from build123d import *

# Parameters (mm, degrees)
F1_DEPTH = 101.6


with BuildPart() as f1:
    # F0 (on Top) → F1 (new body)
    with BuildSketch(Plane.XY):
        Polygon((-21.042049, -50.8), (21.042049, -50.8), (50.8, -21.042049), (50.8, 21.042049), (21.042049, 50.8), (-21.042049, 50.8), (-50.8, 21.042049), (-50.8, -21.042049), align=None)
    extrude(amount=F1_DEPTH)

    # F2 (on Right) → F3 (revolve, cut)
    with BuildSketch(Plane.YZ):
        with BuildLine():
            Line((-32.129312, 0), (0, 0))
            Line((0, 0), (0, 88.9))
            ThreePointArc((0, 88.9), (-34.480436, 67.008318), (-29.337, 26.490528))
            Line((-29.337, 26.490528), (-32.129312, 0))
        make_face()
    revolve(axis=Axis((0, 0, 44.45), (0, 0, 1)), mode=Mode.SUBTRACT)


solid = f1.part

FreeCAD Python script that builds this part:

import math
import FreeCAD as App
import Part
import Sketcher
Q = App.Units.Quantity

doc = App.newDocument("Part")
params = doc.addObject("Spreadsheet::Sheet", "Params")
for row, (alias, value) in enumerate([
    ("pad1_length", "4 in"),
    ("sketch2_radius", "1.5 in"),
    ("sketch2_height", "3.5 in"),
    ("groove_angle", "360 deg"),
], start=1):
    params.set(f"A{row}", alias)
    params.set(f"B{row}", "=" + value)
    params.setAlias(f"B{row}", alias)

body = doc.addObject("PartDesign::Body", "Body")

sketch1 = body.newObject("Sketcher::SketchObject", "Sketch")
sketch1.AttachmentSupport = (doc.getObject("XY_Plane"), [""])
sketch1.MapMode = "FlatFace"
sketch1.addGeometry([
    Part.LineSegment(App.Vector(-21, -51, 0), App.Vector(21, -51, 0)),
    Part.LineSegment(App.Vector(21, -51, 0), App.Vector(51, -21, 0)),
    Part.LineSegment(App.Vector(51, -21, 0), App.Vector(51, 21, 0)),
    Part.LineSegment(App.Vector(51, 21, 0), App.Vector(21, 51, 0)),
    Part.LineSegment(App.Vector(21, 51, 0), App.Vector(-21, 51, 0)),
    Part.LineSegment(App.Vector(-21, 51, 0), App.Vector(-51, 21, 0)),
    Part.LineSegment(App.Vector(-51, 21, 0), App.Vector(-51, -21, 0)),
    Part.LineSegment(App.Vector(-51, -21, 0), App.Vector(-21, -51, 0)),
], False)
sketch1.addConstraint([
    Sketcher.Constraint("Coincident", 0, 2, 1, 1),
    Sketcher.Constraint("Coincident", 1, 2, 2, 1),
    Sketcher.Constraint("Coincident", 2, 2, 3, 1),
    Sketcher.Constraint("Coincident", 3, 2, 4, 1),
    Sketcher.Constraint("Coincident", 4, 2, 5, 1),
    Sketcher.Constraint("Coincident", 5, 2, 6, 1),
    Sketcher.Constraint("Coincident", 6, 2, 7, 1),
    Sketcher.Constraint("Coincident", 7, 2, 0, 1),
    Sketcher.Constraint("Horizontal", 0),
    Sketcher.Constraint("Vertical", 2),
    Sketcher.Constraint("Horizontal", 4),
    Sketcher.Constraint("Vertical", 6),
    Sketcher.Constraint("Symmetric", 0, 2, 4, 2, -1, 1),
    Sketcher.Constraint("Symmetric", 1, 2, 5, 2, -1, 1),
    Sketcher.Constraint("Perpendicular", 1, 3),
    Sketcher.Constraint("Perpendicular", 5, 7),
    Sketcher.Constraint("Horizontal", 2, 2, 5, 2),
    Sketcher.Constraint("Horizontal", 1, 2, 6, 2),
    Sketcher.Constraint("Vertical", 0, 2, 3, 2),
    Sketcher.Constraint("Equal", 4, 2),
    Sketcher.Constraint("DistanceY", 0, 2, -1, 1, Q("2 in")),
    Sketcher.Constraint("DistanceX", 0, 1, 0, 2, Q("42.084098 mm")),
])
pad1 = body.newObject("PartDesign::Pad", "Pad")
pad1.Profile = sketch1
pad1.setExpression("Length", "Params.pad1_length")

sketch2 = body.newObject("Sketcher::SketchObject", "Sketch001")
sketch2.AttachmentSupport = (doc.getObject("YZ_Plane"), [""])
sketch2.MapMode = "FlatFace"
sketch2.addGeometry([
    Part.LineSegment(App.Vector(-32, 0, 0), App.Vector(0, 0, 0)),
    Part.LineSegment(App.Vector(0, 0, 0), App.Vector(0, 89, 0)),
    Part.ArcOfCircle(Part.Circle(App.Vector(0, 51, 0), App.Vector(0, 0, 1), 38), math.radians(90), math.radians(220)),
    Part.LineSegment(App.Vector(-29, 26, 0), App.Vector(-32, 0, 0)),
], False)
sketch2.addConstraint([
    Sketcher.Constraint("Coincident", 0, 2, 1, 1),
    Sketcher.Constraint("Coincident", 1, 2, 2, 1),
    Sketcher.Constraint("Coincident", 2, 2, 3, 1),
    Sketcher.Constraint("Coincident", 3, 2, 0, 1),
    Sketcher.Constraint("Horizontal", 0),
    Sketcher.Constraint("Vertical", 1),
    Sketcher.Constraint("Coincident", 0, 2, -1, 1),
    Sketcher.Constraint("PointOnObject", 2, 3, -2),
    Sketcher.Constraint("Radius", 2, Q("1.5 in")),
    Sketcher.Constraint("DistanceY", 1, 1, 1, 2, Q("3.5 in")),
    Sketcher.Constraint("DistanceX", 2, 2, -1, 1, Q("1.155 in")),
    Sketcher.Constraint("DistanceX", 0, 1, 0, 2, Q("32.129312 mm")),
])
sketch2.setExpression("Constraints[8]", "Params.sketch2_radius")
sketch2.setExpression("Constraints[9]", "Params.sketch2_height")
groove = body.newObject("PartDesign::Groove", "Groove")
groove.Profile = sketch2
groove.ReferenceAxis = (sketch2, ["V_Axis"])
groove.setExpression("Angle", "Params.groove_angle")

doc.recompute()
